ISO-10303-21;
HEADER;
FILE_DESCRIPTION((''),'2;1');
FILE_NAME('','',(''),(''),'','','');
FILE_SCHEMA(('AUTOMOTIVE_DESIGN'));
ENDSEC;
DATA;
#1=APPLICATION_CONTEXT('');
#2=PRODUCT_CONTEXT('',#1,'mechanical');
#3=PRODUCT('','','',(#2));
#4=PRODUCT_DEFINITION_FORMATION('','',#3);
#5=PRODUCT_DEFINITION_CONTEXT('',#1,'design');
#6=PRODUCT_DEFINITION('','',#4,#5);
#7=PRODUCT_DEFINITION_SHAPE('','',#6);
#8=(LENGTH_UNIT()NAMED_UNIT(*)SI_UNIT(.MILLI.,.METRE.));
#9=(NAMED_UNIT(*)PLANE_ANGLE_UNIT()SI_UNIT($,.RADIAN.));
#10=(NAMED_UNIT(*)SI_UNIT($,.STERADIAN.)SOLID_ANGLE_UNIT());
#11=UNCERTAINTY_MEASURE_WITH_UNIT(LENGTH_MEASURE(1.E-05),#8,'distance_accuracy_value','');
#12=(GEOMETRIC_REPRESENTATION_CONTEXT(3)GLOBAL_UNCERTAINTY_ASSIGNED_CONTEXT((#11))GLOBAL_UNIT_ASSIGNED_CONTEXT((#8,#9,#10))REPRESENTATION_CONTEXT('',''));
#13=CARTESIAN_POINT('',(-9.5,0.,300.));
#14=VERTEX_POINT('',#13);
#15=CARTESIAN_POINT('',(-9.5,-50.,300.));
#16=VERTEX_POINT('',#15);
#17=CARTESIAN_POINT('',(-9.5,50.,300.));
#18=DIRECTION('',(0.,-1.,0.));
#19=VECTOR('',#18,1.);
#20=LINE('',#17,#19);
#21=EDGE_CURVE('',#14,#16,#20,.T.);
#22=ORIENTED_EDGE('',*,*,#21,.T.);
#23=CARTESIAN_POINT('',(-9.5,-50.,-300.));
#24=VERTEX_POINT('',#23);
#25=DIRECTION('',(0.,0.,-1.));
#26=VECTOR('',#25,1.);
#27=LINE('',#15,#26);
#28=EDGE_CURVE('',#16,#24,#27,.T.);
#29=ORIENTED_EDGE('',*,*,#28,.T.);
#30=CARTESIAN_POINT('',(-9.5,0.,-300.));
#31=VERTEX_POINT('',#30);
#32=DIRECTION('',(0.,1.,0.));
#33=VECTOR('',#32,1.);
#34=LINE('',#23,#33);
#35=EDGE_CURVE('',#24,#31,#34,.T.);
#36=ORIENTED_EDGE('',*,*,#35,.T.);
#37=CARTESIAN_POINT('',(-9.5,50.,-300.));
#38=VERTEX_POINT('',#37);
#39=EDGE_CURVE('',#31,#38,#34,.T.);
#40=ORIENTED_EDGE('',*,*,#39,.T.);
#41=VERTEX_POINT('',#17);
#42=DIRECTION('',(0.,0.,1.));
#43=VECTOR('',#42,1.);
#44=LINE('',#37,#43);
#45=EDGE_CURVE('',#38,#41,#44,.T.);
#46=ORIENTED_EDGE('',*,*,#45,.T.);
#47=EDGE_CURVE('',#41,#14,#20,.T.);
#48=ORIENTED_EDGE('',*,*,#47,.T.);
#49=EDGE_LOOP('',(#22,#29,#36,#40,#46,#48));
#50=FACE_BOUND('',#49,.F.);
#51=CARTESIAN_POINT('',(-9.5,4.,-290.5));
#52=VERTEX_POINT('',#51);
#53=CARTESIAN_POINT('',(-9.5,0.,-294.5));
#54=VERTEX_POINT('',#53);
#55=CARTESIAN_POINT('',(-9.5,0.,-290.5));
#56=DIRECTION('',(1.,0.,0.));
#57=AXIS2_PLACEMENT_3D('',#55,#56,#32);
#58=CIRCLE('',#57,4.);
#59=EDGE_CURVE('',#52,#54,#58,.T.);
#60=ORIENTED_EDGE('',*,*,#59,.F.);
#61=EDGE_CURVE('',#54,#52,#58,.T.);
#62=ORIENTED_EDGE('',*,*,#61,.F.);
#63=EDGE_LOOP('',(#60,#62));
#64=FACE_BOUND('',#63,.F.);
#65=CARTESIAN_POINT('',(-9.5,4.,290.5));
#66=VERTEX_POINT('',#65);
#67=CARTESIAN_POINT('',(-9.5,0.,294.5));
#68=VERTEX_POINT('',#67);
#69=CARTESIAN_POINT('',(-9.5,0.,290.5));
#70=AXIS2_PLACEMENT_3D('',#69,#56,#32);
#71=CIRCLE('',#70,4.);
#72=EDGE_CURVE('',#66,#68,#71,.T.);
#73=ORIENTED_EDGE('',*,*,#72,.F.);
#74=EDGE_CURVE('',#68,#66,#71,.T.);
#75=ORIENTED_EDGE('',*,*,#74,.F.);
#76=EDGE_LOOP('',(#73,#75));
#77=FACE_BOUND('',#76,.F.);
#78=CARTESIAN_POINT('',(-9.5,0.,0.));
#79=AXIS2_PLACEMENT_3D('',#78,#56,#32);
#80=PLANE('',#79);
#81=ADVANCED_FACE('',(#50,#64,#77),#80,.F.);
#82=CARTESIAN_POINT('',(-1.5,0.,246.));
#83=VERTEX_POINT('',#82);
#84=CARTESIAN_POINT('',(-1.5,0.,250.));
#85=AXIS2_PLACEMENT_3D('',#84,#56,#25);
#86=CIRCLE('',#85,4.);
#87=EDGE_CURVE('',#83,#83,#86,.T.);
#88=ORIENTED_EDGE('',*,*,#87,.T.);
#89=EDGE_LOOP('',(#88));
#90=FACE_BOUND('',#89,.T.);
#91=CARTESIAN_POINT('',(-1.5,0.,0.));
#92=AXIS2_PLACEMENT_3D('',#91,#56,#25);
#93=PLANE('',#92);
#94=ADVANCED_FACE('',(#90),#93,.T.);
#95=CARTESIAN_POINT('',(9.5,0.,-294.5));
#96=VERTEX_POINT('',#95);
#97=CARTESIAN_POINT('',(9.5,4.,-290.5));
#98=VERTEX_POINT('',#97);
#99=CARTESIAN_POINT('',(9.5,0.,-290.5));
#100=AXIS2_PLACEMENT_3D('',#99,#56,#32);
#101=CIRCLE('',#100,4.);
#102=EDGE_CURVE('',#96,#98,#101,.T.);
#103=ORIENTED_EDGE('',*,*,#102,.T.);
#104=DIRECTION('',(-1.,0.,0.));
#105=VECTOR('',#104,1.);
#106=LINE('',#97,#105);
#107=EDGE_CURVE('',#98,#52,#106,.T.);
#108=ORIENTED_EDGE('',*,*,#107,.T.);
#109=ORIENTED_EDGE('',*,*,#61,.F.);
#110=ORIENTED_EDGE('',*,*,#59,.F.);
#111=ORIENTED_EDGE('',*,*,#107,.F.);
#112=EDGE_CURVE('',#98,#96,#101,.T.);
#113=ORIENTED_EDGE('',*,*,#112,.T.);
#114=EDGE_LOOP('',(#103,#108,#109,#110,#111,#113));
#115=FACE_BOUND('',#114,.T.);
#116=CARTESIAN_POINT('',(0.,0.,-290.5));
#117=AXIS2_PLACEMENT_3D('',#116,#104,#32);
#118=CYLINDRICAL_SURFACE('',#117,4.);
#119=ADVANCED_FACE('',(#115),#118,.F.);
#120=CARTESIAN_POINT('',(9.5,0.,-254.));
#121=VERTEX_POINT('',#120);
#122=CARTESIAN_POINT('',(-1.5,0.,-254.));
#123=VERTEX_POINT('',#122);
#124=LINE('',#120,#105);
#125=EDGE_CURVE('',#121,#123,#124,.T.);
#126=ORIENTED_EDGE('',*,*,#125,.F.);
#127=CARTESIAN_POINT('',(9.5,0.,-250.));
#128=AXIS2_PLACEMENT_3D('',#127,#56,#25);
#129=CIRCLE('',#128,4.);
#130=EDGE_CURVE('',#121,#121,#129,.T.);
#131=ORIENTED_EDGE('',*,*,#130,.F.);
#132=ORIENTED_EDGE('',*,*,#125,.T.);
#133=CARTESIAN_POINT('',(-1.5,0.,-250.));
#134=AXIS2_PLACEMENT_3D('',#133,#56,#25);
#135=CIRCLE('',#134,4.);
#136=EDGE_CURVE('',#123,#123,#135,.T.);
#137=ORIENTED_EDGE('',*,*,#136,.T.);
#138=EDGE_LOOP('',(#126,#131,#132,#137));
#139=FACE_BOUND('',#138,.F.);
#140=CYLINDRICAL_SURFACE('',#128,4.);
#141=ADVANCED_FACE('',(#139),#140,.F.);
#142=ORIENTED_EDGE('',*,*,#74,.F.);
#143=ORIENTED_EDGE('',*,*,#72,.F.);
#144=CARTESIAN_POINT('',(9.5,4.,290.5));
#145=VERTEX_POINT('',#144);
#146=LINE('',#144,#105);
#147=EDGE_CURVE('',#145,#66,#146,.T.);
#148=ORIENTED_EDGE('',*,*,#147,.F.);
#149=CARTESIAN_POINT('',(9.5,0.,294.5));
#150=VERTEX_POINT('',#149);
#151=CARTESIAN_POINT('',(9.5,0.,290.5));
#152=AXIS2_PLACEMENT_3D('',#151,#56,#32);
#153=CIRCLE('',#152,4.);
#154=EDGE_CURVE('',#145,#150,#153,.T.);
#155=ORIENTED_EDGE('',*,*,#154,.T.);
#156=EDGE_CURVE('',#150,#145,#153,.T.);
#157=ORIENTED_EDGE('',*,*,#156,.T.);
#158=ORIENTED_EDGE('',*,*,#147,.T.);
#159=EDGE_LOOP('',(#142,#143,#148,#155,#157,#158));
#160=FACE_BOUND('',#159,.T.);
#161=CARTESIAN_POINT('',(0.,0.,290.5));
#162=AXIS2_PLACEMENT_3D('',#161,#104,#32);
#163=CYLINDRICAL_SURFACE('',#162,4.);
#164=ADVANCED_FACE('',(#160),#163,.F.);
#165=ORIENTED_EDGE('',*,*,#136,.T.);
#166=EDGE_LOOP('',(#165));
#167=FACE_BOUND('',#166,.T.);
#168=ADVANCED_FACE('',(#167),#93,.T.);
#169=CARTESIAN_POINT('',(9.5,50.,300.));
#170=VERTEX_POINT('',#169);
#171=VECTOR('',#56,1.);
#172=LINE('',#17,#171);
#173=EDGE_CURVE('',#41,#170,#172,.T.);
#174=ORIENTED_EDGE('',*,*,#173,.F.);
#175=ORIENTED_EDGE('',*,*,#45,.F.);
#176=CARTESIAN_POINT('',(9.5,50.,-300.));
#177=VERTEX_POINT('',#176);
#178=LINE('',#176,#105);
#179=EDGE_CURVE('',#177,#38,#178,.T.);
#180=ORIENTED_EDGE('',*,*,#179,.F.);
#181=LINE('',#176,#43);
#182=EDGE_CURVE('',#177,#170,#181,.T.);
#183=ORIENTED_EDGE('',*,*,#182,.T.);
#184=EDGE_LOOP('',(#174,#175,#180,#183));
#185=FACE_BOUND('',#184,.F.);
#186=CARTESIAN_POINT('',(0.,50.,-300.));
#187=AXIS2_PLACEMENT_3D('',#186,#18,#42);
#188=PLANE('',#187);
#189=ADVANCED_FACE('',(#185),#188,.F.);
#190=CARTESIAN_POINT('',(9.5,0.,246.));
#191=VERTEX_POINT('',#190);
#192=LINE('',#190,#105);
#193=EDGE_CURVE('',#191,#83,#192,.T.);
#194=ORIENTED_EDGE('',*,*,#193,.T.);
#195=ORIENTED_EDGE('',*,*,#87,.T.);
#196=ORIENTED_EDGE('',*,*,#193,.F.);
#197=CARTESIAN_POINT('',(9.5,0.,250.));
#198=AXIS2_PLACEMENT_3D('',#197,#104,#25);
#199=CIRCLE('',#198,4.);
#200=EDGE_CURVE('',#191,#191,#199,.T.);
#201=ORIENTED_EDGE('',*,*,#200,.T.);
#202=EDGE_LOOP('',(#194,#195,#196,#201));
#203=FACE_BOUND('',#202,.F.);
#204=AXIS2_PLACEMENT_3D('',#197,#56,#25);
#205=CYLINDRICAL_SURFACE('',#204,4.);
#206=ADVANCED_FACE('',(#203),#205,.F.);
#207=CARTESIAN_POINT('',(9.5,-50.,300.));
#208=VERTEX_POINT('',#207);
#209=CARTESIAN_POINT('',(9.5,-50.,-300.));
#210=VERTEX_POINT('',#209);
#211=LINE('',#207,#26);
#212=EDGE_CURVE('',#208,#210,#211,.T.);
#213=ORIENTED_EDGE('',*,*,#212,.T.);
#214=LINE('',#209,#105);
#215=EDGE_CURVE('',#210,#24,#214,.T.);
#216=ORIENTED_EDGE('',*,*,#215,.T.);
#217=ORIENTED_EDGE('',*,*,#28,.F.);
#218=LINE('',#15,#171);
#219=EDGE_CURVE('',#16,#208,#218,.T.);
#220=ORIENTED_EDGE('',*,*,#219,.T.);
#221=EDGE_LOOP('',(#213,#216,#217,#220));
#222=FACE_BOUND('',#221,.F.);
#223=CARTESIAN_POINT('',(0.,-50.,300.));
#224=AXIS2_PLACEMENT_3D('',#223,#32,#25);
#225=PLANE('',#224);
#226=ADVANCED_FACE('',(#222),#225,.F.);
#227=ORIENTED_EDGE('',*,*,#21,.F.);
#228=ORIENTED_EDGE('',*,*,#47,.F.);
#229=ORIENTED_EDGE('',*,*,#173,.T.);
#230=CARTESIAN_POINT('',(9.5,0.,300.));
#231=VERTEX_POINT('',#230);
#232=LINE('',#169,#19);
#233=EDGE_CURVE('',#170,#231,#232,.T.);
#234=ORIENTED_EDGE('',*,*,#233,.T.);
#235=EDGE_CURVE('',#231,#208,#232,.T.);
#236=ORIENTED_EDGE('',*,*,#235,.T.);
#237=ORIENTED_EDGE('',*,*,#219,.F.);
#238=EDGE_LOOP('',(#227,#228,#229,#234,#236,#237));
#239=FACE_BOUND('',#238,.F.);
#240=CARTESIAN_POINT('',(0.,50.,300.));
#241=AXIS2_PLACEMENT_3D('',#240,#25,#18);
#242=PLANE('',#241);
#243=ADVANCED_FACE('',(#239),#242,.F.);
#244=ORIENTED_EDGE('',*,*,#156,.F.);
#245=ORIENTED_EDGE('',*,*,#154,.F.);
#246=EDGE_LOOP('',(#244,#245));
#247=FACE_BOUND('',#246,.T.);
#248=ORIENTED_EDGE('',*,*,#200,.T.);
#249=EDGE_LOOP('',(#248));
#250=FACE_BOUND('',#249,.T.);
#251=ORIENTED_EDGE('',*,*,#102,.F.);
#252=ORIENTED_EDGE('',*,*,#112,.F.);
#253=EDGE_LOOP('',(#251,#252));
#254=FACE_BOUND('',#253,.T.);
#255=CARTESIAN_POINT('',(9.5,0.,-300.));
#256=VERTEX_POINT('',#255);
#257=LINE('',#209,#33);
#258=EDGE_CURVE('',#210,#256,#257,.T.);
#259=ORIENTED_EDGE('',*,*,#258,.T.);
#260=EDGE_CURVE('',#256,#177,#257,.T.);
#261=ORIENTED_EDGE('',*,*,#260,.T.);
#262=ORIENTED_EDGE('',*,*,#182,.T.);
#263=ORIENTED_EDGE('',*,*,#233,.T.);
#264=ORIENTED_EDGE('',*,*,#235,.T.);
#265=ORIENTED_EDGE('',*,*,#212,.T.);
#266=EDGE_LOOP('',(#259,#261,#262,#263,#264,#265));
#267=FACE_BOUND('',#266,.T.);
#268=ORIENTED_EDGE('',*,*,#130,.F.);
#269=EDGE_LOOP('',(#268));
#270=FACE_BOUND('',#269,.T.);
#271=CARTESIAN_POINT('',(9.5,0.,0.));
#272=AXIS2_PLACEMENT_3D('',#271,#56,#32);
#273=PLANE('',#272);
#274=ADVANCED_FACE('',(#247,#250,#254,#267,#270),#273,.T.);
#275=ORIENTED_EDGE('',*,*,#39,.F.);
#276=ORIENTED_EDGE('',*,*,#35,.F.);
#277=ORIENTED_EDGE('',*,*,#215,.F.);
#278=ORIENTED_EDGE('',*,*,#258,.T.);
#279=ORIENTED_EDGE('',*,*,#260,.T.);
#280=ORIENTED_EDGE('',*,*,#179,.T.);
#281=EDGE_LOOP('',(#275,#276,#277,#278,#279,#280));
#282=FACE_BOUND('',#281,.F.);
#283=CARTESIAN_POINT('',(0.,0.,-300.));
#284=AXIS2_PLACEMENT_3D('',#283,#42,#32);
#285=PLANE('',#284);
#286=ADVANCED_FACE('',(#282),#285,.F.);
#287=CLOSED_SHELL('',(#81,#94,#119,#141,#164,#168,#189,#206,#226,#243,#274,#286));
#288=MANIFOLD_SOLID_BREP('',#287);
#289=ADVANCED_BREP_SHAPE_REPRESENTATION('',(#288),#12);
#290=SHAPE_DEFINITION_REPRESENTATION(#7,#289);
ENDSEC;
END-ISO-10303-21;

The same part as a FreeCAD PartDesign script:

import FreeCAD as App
import Part
import Sketcher

V = App.Vector


def add_polygon(sketch, points):
    """Adds a closed chain of lines whose ends are joined by coincident constraints."""
    first, n = sketch.GeometryCount, len(points)
    for a, b in zip(points, points[1:] + points[:1]):
        sketch.addGeometry(Part.LineSegment(App.Vector(*a, 0), App.Vector(*b, 0)), False)
    for i in range(n):
        sketch.addConstraint(Sketcher.Constraint("Coincident", first + i, 2, first + (i + 1) % n, 1))

doc = App.newDocument("Part")
body = doc.addObject("PartDesign::Body", "Body")

sketch1 = body.newObject("Sketcher::SketchObject", "Sketch")
sketch1.AttachmentSupport = (doc.getObject("YZ_Plane"), [""])
sketch1.MapMode = "FlatFace"
add_polygon(sketch1, [(50, -300), (50, 300), (0, 300), (-50, 300), (-50, -300), (0, -300)])
sketch1.addGeometry(Part.Circle(V(0, -290.5, 0), V(0, 0, 1), 4), False)
sketch1.addGeometry(Part.Circle(V(0, 290.5, 0), V(0, 0, 1), 4), False)
sketch1.addConstraint([
    Sketcher.Constraint("Vertical", 0),
    Sketcher.Constraint("Horizontal", 1),
    Sketcher.Constraint("Horizontal", 2),
    Sketcher.Constraint("Vertical", 3),
    Sketcher.Constraint("Horizontal", 4),
    Sketcher.Constraint("Horizontal", 5),
    Sketcher.Constraint("Equal", 6, 7),
    Sketcher.Constraint("Symmetric", 6, 3, 7, 3, -1, 1),
    Sketcher.Constraint("Symmetric", 0, 2, 3, 2, -1, 1),
    Sketcher.Constraint("PointOnObject", 6, 3, -2),
    Sketcher.Constraint("PointOnObject", 1, 2, -2),
    Sketcher.Constraint("PointOnObject", 4, 2, -2),
    Sketcher.Constraint("Diameter", 6, 8.0),
    Sketcher.Constraint("DistanceY", 0, 1, 0, 2, 600.0),
    Sketcher.Constraint("DistanceX", 2, 2, 0, 2, 100.0),
    Sketcher.Constraint("DistanceY", 7, 3, 0, 2, 9.5),
])
pad1 = body.newObject("PartDesign::Pad", "Pad")
pad1.Profile = sketch1
pad1.Length = 19
pad1.Midplane = True

sketch2 = body.newObject("Sketcher::SketchObject", "Sketch001")
sketch2.AttachmentSupport = (doc.getObject("YZ_Plane"), [""])
sketch2.MapMode = "FlatFace"
sketch2.AttachmentOffset = App.Placement(V(0, 0, 9.5), App.Rotation())
sketch2.addGeometry([
    Part.Circle(V(0, -250, 0), V(0, 0, 1), 4),
    Part.Circle(V(0, 250, 0), V(0, 0, 1), 4),
], False)
sketch2.addConstraint([
    Sketcher.Constraint("Equal", 0, 1),
    Sketcher.Constraint("Symmetric", 0, 3, 1, 3, -1, 1),
    Sketcher.Constraint("PointOnObject", 0, 3, -2),
    Sketcher.Constraint("Diameter", 0, 8.0),
    Sketcher.Constraint("DistanceY", 0, 3, -1, 1, 250.0),
])
pocket1 = body.newObject("PartDesign::Pocket", "Pocket")
pocket1.Profile = sketch2
pocket1.Length = 11

doc.recompute()
